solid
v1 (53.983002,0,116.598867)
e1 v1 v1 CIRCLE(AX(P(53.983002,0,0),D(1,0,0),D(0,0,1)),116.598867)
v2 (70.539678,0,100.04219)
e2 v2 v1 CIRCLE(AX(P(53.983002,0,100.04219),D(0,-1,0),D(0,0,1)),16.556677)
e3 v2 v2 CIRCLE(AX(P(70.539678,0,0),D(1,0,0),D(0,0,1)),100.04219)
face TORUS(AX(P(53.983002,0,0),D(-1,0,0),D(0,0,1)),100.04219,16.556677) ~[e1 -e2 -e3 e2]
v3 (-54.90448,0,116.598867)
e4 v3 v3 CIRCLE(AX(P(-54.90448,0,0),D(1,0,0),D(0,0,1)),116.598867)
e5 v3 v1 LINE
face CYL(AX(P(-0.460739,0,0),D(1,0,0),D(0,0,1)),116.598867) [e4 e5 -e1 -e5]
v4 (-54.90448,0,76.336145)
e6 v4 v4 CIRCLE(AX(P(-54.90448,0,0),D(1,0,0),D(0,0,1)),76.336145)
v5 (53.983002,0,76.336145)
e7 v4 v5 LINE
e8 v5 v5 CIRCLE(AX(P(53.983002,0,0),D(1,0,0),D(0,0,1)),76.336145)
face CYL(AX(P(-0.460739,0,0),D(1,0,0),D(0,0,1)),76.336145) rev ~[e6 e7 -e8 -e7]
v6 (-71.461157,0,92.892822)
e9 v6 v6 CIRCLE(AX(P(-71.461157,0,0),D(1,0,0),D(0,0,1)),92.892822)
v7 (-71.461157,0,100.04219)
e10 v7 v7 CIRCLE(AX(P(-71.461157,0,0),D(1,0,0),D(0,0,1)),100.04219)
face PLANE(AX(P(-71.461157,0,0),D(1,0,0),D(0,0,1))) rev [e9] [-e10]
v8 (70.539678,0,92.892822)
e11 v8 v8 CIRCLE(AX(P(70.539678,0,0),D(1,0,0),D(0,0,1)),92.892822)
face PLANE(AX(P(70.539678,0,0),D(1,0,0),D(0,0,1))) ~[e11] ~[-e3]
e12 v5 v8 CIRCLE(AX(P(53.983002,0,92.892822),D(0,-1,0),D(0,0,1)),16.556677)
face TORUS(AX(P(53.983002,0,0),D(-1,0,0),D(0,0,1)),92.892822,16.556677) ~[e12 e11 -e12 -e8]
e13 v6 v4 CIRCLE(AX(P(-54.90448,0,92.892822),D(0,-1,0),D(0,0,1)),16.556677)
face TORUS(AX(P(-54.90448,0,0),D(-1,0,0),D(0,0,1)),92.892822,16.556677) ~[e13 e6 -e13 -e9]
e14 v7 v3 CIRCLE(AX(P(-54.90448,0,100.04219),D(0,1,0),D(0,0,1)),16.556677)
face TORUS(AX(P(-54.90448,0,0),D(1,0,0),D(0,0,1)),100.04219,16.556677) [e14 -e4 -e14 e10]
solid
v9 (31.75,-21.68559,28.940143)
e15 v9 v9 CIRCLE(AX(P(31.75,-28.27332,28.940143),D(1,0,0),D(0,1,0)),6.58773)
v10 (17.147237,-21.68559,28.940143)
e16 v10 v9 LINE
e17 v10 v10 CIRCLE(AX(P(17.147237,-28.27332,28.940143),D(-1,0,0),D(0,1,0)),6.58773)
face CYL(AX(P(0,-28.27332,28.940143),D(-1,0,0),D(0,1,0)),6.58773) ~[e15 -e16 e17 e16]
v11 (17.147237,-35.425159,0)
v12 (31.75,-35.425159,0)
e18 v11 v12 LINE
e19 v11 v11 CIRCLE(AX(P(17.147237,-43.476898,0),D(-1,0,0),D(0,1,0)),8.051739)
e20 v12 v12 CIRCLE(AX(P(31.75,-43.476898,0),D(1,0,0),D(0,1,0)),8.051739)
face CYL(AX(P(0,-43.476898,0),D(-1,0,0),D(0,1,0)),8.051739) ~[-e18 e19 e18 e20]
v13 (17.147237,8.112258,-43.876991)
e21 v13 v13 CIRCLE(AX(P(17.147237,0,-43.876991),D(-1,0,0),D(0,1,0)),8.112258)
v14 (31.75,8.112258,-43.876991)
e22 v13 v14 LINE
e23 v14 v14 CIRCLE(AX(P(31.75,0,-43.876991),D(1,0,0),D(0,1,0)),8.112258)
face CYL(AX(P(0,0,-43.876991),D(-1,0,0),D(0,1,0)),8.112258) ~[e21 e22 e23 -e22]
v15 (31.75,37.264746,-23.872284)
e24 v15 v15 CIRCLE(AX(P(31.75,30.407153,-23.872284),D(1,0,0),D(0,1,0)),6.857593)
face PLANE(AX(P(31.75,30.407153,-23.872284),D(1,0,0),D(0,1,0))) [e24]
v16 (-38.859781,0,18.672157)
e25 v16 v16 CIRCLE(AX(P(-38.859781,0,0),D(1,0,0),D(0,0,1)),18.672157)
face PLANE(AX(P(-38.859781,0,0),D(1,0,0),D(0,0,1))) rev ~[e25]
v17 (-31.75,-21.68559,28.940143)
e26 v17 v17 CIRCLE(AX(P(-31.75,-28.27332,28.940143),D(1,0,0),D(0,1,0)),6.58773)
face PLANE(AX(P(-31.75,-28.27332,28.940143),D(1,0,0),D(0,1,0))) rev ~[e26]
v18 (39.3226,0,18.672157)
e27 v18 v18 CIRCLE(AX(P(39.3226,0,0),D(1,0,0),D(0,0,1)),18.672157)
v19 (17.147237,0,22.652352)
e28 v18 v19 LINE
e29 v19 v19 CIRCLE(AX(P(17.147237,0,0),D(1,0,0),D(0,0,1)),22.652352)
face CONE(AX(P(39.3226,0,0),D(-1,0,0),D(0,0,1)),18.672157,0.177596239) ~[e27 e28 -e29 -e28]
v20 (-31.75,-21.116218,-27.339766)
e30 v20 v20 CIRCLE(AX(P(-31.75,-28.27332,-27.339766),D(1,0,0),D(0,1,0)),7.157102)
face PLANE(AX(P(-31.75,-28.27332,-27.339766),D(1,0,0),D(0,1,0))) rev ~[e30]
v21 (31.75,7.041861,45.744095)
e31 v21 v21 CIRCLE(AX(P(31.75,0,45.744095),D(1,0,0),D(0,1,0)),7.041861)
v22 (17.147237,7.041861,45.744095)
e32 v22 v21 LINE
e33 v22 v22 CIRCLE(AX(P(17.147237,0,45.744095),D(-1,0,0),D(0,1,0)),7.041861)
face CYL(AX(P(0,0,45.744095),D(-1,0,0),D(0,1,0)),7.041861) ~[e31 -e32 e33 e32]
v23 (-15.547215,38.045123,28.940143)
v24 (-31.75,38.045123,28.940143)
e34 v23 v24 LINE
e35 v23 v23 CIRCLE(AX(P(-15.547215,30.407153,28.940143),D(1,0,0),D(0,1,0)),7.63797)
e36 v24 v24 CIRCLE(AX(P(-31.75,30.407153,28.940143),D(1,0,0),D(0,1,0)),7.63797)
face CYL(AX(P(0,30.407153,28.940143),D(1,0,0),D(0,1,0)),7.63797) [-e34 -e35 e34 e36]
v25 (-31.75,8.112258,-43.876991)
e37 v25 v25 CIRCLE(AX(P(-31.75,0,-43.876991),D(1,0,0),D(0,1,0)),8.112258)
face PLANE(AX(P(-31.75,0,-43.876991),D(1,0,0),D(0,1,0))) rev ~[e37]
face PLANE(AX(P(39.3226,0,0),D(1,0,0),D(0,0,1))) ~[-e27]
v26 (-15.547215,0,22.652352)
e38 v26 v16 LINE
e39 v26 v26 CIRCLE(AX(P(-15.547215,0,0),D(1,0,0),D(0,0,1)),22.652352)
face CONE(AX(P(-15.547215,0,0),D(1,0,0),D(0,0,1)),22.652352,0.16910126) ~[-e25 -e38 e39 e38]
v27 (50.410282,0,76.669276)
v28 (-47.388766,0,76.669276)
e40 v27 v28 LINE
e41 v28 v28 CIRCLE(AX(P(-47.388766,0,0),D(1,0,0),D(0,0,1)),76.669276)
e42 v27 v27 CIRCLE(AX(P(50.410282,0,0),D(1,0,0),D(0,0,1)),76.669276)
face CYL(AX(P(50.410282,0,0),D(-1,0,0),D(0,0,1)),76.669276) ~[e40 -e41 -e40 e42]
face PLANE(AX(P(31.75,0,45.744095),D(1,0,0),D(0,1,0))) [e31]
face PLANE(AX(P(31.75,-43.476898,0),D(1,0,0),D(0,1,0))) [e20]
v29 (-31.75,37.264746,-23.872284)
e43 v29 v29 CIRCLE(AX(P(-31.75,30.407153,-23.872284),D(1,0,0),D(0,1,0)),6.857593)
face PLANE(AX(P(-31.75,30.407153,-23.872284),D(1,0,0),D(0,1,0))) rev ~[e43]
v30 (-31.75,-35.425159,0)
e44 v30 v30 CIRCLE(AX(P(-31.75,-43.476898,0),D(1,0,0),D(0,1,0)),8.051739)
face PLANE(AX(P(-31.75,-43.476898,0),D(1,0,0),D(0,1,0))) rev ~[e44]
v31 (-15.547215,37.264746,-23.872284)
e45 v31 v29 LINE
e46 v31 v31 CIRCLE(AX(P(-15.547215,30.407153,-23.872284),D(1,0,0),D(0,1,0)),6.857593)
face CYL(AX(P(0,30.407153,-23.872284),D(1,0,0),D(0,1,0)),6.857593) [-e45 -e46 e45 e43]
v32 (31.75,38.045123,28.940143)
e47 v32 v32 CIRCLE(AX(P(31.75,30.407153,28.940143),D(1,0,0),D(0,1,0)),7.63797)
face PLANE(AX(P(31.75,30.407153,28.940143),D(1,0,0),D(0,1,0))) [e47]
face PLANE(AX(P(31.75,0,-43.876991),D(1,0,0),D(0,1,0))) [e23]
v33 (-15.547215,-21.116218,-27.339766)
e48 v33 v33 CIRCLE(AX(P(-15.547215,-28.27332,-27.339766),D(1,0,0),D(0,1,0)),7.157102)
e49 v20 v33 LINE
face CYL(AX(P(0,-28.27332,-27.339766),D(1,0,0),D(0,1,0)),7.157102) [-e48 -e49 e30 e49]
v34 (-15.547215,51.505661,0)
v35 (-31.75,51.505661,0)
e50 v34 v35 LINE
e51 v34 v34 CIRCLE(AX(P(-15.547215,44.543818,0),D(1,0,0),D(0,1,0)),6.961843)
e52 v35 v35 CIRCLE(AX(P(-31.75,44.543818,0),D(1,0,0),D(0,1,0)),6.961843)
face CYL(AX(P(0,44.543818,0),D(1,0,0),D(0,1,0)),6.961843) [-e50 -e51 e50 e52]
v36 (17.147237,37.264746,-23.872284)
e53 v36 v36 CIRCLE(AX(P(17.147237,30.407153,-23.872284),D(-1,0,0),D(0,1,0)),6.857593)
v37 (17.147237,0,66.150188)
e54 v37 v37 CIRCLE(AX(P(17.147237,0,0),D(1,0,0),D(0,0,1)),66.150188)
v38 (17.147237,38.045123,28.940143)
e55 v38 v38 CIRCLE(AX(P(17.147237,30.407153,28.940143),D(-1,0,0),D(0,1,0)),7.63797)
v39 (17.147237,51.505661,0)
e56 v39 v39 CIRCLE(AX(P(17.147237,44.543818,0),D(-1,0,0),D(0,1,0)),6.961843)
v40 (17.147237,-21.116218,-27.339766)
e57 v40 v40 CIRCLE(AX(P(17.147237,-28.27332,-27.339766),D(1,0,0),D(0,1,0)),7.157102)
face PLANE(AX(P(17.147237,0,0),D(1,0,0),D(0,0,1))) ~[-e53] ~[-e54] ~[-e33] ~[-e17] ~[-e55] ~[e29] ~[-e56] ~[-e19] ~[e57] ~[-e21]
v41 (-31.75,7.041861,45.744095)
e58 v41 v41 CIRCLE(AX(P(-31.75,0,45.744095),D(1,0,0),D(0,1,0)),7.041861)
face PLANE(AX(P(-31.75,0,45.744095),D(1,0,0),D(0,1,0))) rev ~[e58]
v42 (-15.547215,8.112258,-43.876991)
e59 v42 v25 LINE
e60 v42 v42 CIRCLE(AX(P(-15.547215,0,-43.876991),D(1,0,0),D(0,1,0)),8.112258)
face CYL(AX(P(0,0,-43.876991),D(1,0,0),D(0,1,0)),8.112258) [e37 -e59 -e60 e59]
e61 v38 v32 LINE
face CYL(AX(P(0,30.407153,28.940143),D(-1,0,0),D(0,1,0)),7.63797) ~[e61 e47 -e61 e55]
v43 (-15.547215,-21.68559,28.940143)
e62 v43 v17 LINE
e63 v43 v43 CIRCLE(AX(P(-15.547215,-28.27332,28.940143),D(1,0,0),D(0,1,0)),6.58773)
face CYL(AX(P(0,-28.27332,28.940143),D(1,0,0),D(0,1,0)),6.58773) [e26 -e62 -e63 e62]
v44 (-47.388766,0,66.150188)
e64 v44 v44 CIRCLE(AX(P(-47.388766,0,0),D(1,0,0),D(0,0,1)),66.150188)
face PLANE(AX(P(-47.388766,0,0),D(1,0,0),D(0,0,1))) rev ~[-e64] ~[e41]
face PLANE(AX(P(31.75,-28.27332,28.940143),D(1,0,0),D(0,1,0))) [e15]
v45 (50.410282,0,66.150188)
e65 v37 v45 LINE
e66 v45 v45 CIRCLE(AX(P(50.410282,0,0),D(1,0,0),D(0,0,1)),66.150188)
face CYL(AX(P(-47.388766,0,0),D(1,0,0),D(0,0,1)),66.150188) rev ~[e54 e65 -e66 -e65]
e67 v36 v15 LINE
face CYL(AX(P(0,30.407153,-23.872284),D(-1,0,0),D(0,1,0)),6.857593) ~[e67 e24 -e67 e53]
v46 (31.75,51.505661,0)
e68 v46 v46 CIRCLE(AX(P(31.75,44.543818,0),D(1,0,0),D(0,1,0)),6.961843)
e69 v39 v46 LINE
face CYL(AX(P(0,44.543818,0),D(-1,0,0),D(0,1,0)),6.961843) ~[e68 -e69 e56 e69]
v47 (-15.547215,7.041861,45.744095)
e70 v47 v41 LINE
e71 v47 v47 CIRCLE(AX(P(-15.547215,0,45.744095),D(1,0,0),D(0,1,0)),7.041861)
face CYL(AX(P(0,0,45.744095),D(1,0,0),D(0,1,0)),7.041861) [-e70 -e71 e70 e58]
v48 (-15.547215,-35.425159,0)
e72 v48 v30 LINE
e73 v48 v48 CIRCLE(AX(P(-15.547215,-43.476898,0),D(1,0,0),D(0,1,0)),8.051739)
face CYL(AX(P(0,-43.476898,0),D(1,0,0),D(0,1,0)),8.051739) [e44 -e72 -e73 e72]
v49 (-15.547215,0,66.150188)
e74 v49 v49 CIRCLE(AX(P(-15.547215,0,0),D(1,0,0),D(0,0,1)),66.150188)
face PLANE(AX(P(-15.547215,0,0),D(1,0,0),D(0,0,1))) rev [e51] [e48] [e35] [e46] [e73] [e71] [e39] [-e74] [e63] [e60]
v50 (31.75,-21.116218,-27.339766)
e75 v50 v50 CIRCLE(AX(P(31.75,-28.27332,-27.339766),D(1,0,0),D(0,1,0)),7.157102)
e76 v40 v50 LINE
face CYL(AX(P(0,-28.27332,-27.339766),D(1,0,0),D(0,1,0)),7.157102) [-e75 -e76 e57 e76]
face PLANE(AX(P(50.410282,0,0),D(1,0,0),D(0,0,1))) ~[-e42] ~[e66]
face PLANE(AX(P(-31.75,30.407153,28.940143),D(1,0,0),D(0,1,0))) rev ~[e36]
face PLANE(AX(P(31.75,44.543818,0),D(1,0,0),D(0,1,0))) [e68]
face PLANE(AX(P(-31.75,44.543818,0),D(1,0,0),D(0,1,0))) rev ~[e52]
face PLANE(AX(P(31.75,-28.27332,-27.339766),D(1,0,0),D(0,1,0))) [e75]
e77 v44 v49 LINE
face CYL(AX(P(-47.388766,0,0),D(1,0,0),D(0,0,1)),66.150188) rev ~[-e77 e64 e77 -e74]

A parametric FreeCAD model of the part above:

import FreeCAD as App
import Part
import Sketcher
from FreeCAD import Vector


def edges_at(feature, points):
    """Names of the edges that pass closest to the given points."""
    edges = feature.Shape.Edges
    near = lambda p: min(range(len(edges)), key=lambda i: edges[i].distToShape(Part.Vertex(*p))[0])
    return sorted({f"Edge{near(p) + 1}" for p in points})


def add_polygon(sketch, points):
    """Adds a closed chain of lines whose ends are joined by coincident constraints."""
    first, n = sketch.GeometryCount, len(points)
    for a, b in zip(points, points[1:] + points[:1]):
        sketch.addGeometry(Part.LineSegment(App.Vector(*a, 0), App.Vector(*b, 0)), False)
    for i in range(n):
        sketch.addConstraint(Sketcher.Constraint("Coincident", first + i, 2, first + (i + 1) % n, 1))

doc = App.newDocument("Part")
params = doc.addObject("Spreadsheet::Sheet", "Params")
for row, (alias, value) in enumerate([
    ("revolution_angle", "360 deg"),
    ("pad1_length", "2.5 in"),
    ("revolution2_angle", "360 deg"),
    ("fillet_radius", "16.556677 mm"),
], start=1):
    params.set(f"A{row}", alias)
    params.set(f"B{row}", "=" + value)
    params.setAlias(f"B{row}", alias)

body = doc.addObject("PartDesign::Body", "Body")

# Sketch on XZ plane
sketch1 = body.newObject("Sketcher::SketchObject", "Sketch")
sketch1.AttachmentSupport = (doc.getObject("XZ_Plane"), [""])
sketch1.MapMode = "FlatFace"
add_polygon(sketch1, [(50, 77), (-47, 77), (-47, 66), (-16, 66), (-16, 23), (-39, 19), (-39, 0), (39, 0), (39, 19), (17, 23), (17, 66), (50, 66)])  # lines 0-11
sketch1.addConstraint([
    Sketcher.Constraint("Horizontal", 0),
    Sketcher.Constraint("Vertical", 1),
    Sketcher.Constraint("Horizontal", 2),
    Sketcher.Constraint("Vertical", 3),
    Sketcher.Constraint("Vertical", 5),
    Sketcher.Constraint("Horizontal", 6),
    Sketcher.Constraint("Vertical", 7),
    Sketcher.Constraint("Vertical", 9),
    Sketcher.Constraint("Horizontal", 10),
    Sketcher.Constraint("Vertical", 11),
    Sketcher.Constraint("PointOnObject", 5, 2, -1),
    Sketcher.Constraint("Horizontal", 4, 2, 7, 2),
    Sketcher.Constraint("Horizontal", 3, 2, 8, 2),
    Sketcher.Constraint("Horizontal", 2, 2, 9, 2),
    Sketcher.Constraint("Distance", 4, 23.649898),
    Sketcher.Constraint("DistanceX", 0, 2, 0, 1, 97.799048),
    Sketcher.Constraint("DistanceX", 2, 1, 2, 2, 31.841551),
    Sketcher.Constraint("DistanceX", 6, 1, 6, 2, 78.182381),
    Sketcher.Constraint("DistanceX", -1, 1, 6, 2, 39.3226),
    Sketcher.Constraint("Distance", 8, 22.529729),
    Sketcher.Constraint("DistanceX", 10, 1, 10, 2, 33.263045),
    Sketcher.Constraint("DistanceY", 1, 2, 1, 1, 10.519088),
    Sketcher.Constraint("DistanceY", 3, 2, 3, 1, 43.497836),
    Sketcher.Constraint("DistanceY", 5, 2, 5, 1, 18.672157),
])
revolution = body.newObject("PartDesign::Revolution", "Revolution")
revolution.Profile = sketch1
revolution.ReferenceAxis = (sketch1, ["H_Axis"])
revolution.setExpression("Angle", "Params.revolution_angle")

# Sketch on YZ plane
sketch2 = body.newObject("Sketcher::SketchObject", "Sketch001")
sketch2.AttachmentSupport = (doc.getObject("YZ_Plane"), [""])
sketch2.MapMode = "FlatFace"
sketch2.addGeometry([
    Part.Circle(Vector(-43, 0, 0), Vector(0, 0, 1), 8),  # 0
    Part.Circle(Vector(0, 46, 0), Vector(0, 0, 1), 7),  # 1
    Part.Circle(Vector(45, 0, 0), Vector(0, 0, 1), 7),  # 2
    Part.Circle(Vector(0, -44, 0), Vector(0, 0, 1), 8),  # 3
    Part.Circle(Vector(-28, 29, 0), Vector(0, 0, 1), 7),  # 4
    Part.Circle(Vector(30, 29, 0), Vector(0, 0, 1), 8),  # 5
    Part.Circle(Vector(30, -24, 0), Vector(0, 0, 1), 7),  # 6
    Part.Circle(Vector(-28, -27, 0), Vector(0, 0, 1), 7),  # 7
], False)
sketch2.addConstraint([
    Sketcher.Constraint("PointOnObject", 0, 3, -1),
    Sketcher.Constraint("PointOnObject", 1, 3, -2),
    Sketcher.Constraint("PointOnObject", 2, 3, -1),
    Sketcher.Constraint("PointOnObject", 3, 3, -2),
    Sketcher.Constraint("Horizontal", 4, 3, 5, 3),
    Sketcher.Constraint("Vertical", 5, 3, 6, 3),
    Sketcher.Constraint("Vertical", 4, 3, 7, 3),
    Sketcher.Constraint("Diameter", 4, 13.17546),
    Sketcher.Constraint("Diameter", 5, 15.27594),
    Sketcher.Constraint("Diameter", 0, 16.103478),
    Sketcher.Constraint("Diameter", 1, 14.083722),
    Sketcher.Constraint("Diameter", 2, 13.923686),
    Sketcher.Constraint("Diameter", 3, 16.224516),
    Sketcher.Constraint("Diameter", 6, 13.715186),
    Sketcher.Constraint("Diameter", 7, 14.314204),
    Sketcher.Constraint("DistanceX", -1, 1, 2, 3, 44.543818),
    Sketcher.Constraint("DistanceY", 3, 3, -1, 1, 43.876991),
    Sketcher.Constraint("DistanceX", 4, 3, -1, 1, 28.27332),
    Sketcher.Constraint("DistanceX", 0, 3, 5, 3, 73.884051),
    Sketcher.Constraint("DistanceY", 6, 3, 1, 3, 69.616379),
    Sketcher.Constraint("DistanceY", 7, 3, 4, 3, 56.279909),
    Sketcher.Constraint("DistanceX", 0, 3, -1, 1, 43.476898),
    Sketcher.Constraint("DistanceY", -1, 1, 1, 3, 45.744095),
    Sketcher.Constraint("DistanceY", -1, 1, 4, 3, 28.940143),
])
pad1 = body.newObject("PartDesign::Pad", "Pad")
pad1.Profile = sketch2
pad1.setExpression("Length", "Params.pad1_length")
pad1.Midplane = True
body2 = doc.addObject("PartDesign::Body", "Body001")

# Sketch on XZ plane
sketch3 = body2.newObject("Sketcher::SketchObject", "Sketch002")
sketch3.AttachmentSupport = (doc.getObject("XZ_Plane001"), [""])
sketch3.MapMode = "FlatFace"
add_polygon(sketch3, [(-71, 117), (-71, 76), (71, 76), (71, 117)])  # lines 0-3
sketch3.addConstraint([
    Sketcher.Constraint("Vertical", 0),
    Sketcher.Constraint("Horizontal", 1),
    Sketcher.Constraint("Vertical", 2),
    Sketcher.Constraint("Horizontal", 3),
    Sketcher.Constraint("DistanceY", 0, 2, 0, 1, 40.262722),
    Sketcher.Constraint("DistanceX", 1, 1, 1, 2, 142.000835),
    Sketcher.Constraint("DistanceX", -1, 1, 1, 2, 70.539678),
    Sketcher.Constraint("DistanceY", -1, 1, 0, 2, 76.336145),
])
revolution2 = body2.newObject("PartDesign::Revolution", "Revolution001")
revolution2.Profile = sketch3
revolution2.ReferenceAxis = (sketch3, ["H_Axis"])
revolution2.setExpression("Angle", "Params.revolution2_angle")
doc.recompute()

fillet = body2.newObject("PartDesign::Fillet", "Fillet")
fillet.Base = (revolution2, edges_at(revolution2, [
    (-71.461, 0, -116.599),
    (-71.461, 0, -76.336),
    (70.54, 0, -116.599),
    (70.54, 0, -76.336),
]))
fillet.setExpression("Radius", "Params.fillet_radius")

doc.recompute()
